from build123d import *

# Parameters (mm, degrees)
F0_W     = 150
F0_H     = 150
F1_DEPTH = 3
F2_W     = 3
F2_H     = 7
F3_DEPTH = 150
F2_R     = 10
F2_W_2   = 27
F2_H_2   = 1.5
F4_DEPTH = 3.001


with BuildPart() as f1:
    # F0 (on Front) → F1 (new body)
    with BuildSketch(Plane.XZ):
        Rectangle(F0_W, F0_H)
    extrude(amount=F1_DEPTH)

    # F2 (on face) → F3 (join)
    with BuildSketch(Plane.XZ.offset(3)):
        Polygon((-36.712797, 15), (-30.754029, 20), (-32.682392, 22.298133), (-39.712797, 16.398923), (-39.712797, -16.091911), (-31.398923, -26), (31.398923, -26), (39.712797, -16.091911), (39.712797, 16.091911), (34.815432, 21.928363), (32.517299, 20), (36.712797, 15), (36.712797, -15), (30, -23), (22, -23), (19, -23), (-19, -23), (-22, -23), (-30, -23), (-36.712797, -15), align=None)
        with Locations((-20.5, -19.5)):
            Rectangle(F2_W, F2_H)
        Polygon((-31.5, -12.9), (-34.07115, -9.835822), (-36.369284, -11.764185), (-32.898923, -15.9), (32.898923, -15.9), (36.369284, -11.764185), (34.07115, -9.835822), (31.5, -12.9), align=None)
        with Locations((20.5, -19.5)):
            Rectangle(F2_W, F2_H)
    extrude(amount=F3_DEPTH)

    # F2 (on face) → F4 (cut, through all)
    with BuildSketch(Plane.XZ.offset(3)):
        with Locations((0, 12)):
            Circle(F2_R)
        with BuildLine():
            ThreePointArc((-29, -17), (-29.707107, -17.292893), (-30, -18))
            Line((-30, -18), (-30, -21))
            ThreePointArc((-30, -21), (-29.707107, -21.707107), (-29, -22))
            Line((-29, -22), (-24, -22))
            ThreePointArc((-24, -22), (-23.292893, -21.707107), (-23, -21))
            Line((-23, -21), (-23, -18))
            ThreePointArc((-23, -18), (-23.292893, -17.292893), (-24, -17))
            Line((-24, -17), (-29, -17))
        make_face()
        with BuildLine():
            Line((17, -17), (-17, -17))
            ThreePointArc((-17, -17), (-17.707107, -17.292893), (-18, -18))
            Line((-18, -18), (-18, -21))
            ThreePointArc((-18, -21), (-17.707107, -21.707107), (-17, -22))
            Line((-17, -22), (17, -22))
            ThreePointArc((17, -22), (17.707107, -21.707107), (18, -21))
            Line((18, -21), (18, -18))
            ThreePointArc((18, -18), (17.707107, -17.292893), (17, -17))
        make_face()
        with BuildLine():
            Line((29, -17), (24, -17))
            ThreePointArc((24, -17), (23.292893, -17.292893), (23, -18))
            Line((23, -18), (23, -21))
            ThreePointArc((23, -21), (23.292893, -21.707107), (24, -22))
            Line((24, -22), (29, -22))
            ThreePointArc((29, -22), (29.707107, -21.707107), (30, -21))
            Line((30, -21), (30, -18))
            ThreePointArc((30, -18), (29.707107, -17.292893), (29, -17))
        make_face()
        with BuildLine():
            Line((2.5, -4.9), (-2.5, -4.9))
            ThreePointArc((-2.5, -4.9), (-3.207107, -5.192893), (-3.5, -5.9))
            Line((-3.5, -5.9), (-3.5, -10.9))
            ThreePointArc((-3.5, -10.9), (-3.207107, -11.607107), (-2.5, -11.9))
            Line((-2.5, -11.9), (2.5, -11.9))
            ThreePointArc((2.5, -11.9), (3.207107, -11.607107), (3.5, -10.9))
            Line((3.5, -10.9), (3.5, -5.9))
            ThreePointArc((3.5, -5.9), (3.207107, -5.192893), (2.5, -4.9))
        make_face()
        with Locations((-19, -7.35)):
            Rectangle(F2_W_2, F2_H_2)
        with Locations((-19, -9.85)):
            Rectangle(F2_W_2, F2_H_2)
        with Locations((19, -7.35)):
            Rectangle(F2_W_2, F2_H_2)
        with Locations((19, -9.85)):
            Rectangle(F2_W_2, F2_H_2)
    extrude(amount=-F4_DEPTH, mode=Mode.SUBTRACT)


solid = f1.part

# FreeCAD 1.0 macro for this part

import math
import FreeCAD as App
import Part
import Sketcher

V = App.Vector
Q = App.Units.Quantity

doc = App.newDocument("Part")
body = doc.addObject("PartDesign::Body", "Body")

# Sketch on XZ plane
sketch1 = body.newObject("Sketcher::SketchObject", "Sketch")
sketch1.AttachmentSupport = (doc.getObject("XZ_Plane"), [""])
sketch1.MapMode = "FlatFace"
sketch1.addGeometry(Part.LineSegment(V(-75, 75, 0), V(-75, -75, 0)), False)
sketch1.addGeometry(Part.LineSegment(V(-75, -75, 0), V(75, -75, 0)), False)
sketch1.addGeometry(Part.LineSegment(V(75, -75, 0), V(75, 75, 0)), False)
sketch1.addGeometry(Part.LineSegment(V(75, 75, 0), V(-75, 75, 0)), False)
sketch1.addConstraint(Sketcher.Constraint("Coincident", 0, 2, 1, 1))
sketch1.addConstraint(Sketcher.Constraint("Coincident", 1, 2, 2, 1))
sketch1.addConstraint(Sketcher.Constraint("Coincident", 2, 2, 3, 1))
sketch1.addConstraint(Sketcher.Constraint("Coincident", 3, 2, 0, 1))
sketch1.addConstraint(Sketcher.Constraint("Vertical", 0))
sketch1.addConstraint(Sketcher.Constraint("Horizontal", 1))
sketch1.addConstraint(Sketcher.Constraint("Vertical", 2))
sketch1.addConstraint(Sketcher.Constraint("Horizontal", 3))
sketch1.addConstraint(Sketcher.Constraint("Symmetric", 0, 2, 2, 2, -1, 1))
sketch1.addConstraint(Sketcher.Constraint("Equal", 3, 0))
sketch1.addConstraint(Sketcher.Constraint("DistanceX", 1, 1, 1, 2, 150.0))
pad1 = body.newObject("PartDesign::Pad", "Pad")
pad1.Profile = sketch1
pad1.Length = 3

# Sketch on XZ plane
sketch2 = body.newObject("Sketcher::SketchObject", "Sketch001")
sketch2.AttachmentSupport = (doc.getObject("XZ_Plane"), [""])
sketch2.MapMode = "FlatFace"
sketch2.AttachmentOffset = App.Placement(V(0, 0, 3), App.Rotation())
sketch2.addGeometry(Part.LineSegment(V(-36.712797, 15, 0), V(-30.754029, 20, 0)), False)
sketch2.addGeometry(Part.LineSegment(V(-30.754029, 20, 0), V(-32.682392, 22.298133, 0)), False)
sketch2.addGeometry(Part.LineSegment(V(-32.682392, 22.298133, 0), V(-39.712797, 16.398923, 0)), False)
sketch2.addGeometry(Part.LineSegment(V(-39.712797, 16.398923, 0), V(-39.712797, -16.091911, 0)), False)
sketch2.addGeometry(Part.LineSegment(V(-39.712797, -16.091911, 0), V(-31.398923, -26, 0)), False)
sketch2.addGeometry(Part.LineSegment(V(-31.398923, -26, 0), V(31.398923, -26, 0)), False)
sketch2.addGeometry(Part.LineSegment(V(31.398923, -26, 0), V(39.712797, -16.091911, 0)), False)
sketch2.addGeometry(Part.LineSegment(V(39.712797, -16.091911, 0), V(39.712797, 16.091911, 0)), False)
sketch2.addGeometry(Part.LineSegment(V(39.712797, 16.091911, 0), V(34.815432, 21.928363, 0)), False)
sketch2.addGeometry(Part.LineSegment(V(34.815432, 21.928363, 0), V(32.517299, 20, 0)), False)
sketch2.addGeometry(Part.LineSegment(V(32.517299, 20, 0), V(36.712797, 15, 0)), False)
sketch2.addGeometry(Part.LineSegment(V(36.712797, 15, 0), V(36.712797, -15, 0)), False)
sketch2.addGeometry(Part.LineSegment(V(36.712797, -15, 0), V(30, -23, 0)), False)
sketch2.addGeometry(Part.LineSegment(V(30, -23, 0), V(22, -23, 0)), False)
sketch2.addGeometry(Part.LineSegment(V(22, -23, 0), V(22, -16, 0)), False)
sketch2.addGeometry(Part.LineSegment(V(22, -16, 0), V(19, -16, 0)), False)
sketch2.addGeometry(Part.LineSegment(V(19, -16, 0), V(19, -23, 0)), False)
sketch2.addGeometry(Part.LineSegment(V(19, -23, 0), V(-19, -23, 0)), False)
sketch2.addGeometry(Part.LineSegment(V(-19, -23, 0), V(-19, -16, 0)), False)
sketch2.addGeometry(Part.LineSegment(V(-19, -16, 0), V(-22, -16, 0)), False)
sketch2.addGeometry(Part.LineSegment(V(-22, -16, 0), V(-22, -23, 0)), False)
sketch2.addGeometry(Part.LineSegment(V(-22, -23, 0), V(-30, -23, 0)), False)
sketch2.addGeometry(Part.LineSegment(V(-30, -23, 0), V(-36.712797, -15, 0)), False)
sketch2.addGeometry(Part.LineSegment(V(-36.712797, -15, 0), V(-36.712797, 15, 0)), False)
sketch2.addGeometry(Part.LineSegment(V(-31.5, -12.9, 0), V(-34.07115, -9.835822, 0)), False)
sketch2.addGeometry(Part.LineSegment(V(-34.07115, -9.835822, 0), V(-36.369284, -11.764185, 0)), False)
sketch2.addGeometry(Part.LineSegment(V(-36.369284, -11.764185, 0), V(-32.898923, -15.9, 0)), False)
sketch2.addGeometry(Part.LineSegment(V(-32.898923, -15.9, 0), V(32.898923, -15.9, 0)), False)
sketch2.addGeometry(Part.LineSegment(V(32.898923, -15.9, 0), V(36.369284, -11.764185, 0)), False)
sketch2.addGeometry(Part.LineSegment(V(36.369284, -11.764185, 0), V(34.07115, -9.835822, 0)), False)
sketch2.addGeometry(Part.LineSegment(V(34.07115, -9.835822, 0), V(31.5, -12.9, 0)), False)
sketch2.addGeometry(Part.LineSegment(V(31.5, -12.9, 0), V(-31.5, -12.9, 0)), False)
sketch2.addConstraint(Sketcher.Constraint("Coincident", 0, 2, 1, 1))
sketch2.addConstraint(Sketcher.Constraint("Coincident", 1, 2, 2, 1))
sketch2.addConstraint(Sketcher.Constraint("Coincident", 2, 2, 3, 1))
sketch2.addConstraint(Sketcher.Constraint("Coincident", 3, 2, 4, 1))
sketch2.addConstraint(Sketcher.Constraint("Coincident", 4, 2, 5, 1))
sketch2.addConstraint(Sketcher.Constraint("Coincident", 5, 2, 6, 1))
sketch2.addConstraint(Sketcher.Constraint("Coincident", 6, 2, 7, 1))
sketch2.addConstraint(Sketcher.Constraint("Coincident", 7, 2, 8, 1))
sketch2.addConstraint(Sketcher.Constraint("Coincident", 8, 2, 9, 1))
sketch2.addConstraint(Sketcher.Constraint("Coincident", 9, 2, 10, 1))
sketch2.addConstraint(Sketcher.Constraint("Coincident", 10, 2, 11, 1))
sketch2.addConstraint(Sketcher.Constraint("Coincident", 11, 2, 12, 1))
sketch2.addConstraint(Sketcher.Constraint("Coincident", 12, 2, 13, 1))
sketch2.addConstraint(Sketcher.Constraint("Coincident", 13, 2, 14, 1))
sketch2.addConstraint(Sketcher.Constraint("Coincident", 14, 2, 15, 1))
sketch2.addConstraint(Sketcher.Constraint("Coincident", 15, 2, 16, 1))
sketch2.addConstraint(Sketcher.Constraint("Coincident", 16, 2, 17, 1))
sketch2.addConstraint(Sketcher.Constraint("Coincident", 17, 2, 18, 1))
sketch2.addConstraint(Sketcher.Constraint("Coincident", 18, 2, 19, 1))
sketch2.addConstraint(Sketcher.Constraint("Coincident", 19, 2, 20, 1))
sketch2.addConstraint(Sketcher.Constraint("Coincident", 20, 2, 21, 1))
sketch2.addConstraint(Sketcher.Constraint("Coincident", 21, 2, 22, 1))
sketch2.addConstraint(Sketcher.Constraint("Coincident", 22, 2, 23, 1))
sketch2.addConstraint(Sketcher.Constraint("Coincident", 23, 2, 0, 1))
sketch2.addConstraint(Sketcher.Constraint("Coincident", 24, 2, 25, 1))
sketch2.addConstraint(Sketcher.Constraint("Coincident", 25, 2, 26, 1))
sketch2.addConstraint(Sketcher.Constraint("Coincident", 26, 2, 27, 1))
sketch2.addConstraint(Sketcher.Constraint("Coincident", 27, 2, 28, 1))
sketch2.addConstraint(Sketcher.Constraint("Coincident", 28, 2, 29, 1))
sketch2.addConstraint(Sketcher.Constraint("Coincident", 29, 2, 30, 1))
sketch2.addConstraint(Sketcher.Constraint("Coincident", 30, 2, 31, 1))
sketch2.addConstraint(Sketcher.Constraint("Coincident", 31, 2, 24, 1))
sketch2.addConstraint(Sketcher.Constraint("Vertical", 3))
sketch2.addConstraint(Sketcher.Constraint("Horizontal", 5))
sketch2.addConstraint(Sketcher.Constraint("Vertical", 7))
sketch2.addConstraint(Sketcher.Constraint("Vertical", 11))
sketch2.addConstraint(Sketcher.Constraint("Horizontal", 13))
sketch2.addConstraint(Sketcher.Constraint("Vertical", 14))
sketch2.addConstraint(Sketcher.Constraint("Horizontal", 15))
sketch2.addConstraint(Sketcher.Constraint("Vertical", 16))
sketch2.addConstraint(Sketcher.Constraint("Horizontal", 17))
sketch2.addConstraint(Sketcher.Constraint("Vertical", 18))
sketch2.addConstraint(Sketcher.Constraint("Horizontal", 19))
sketch2.addConstraint(Sketcher.Constraint("Vertical", 20))
sketch2.addConstraint(Sketcher.Constraint("Horizontal", 21))
sketch2.addConstraint(Sketcher.Constraint("Vertical", 23))
sketch2.addConstraint(Sketcher.Constraint("Horizontal", 27))
sketch2.addConstraint(Sketcher.Constraint("Horizontal", 31))
sketch2.addConstraint(Sketcher.Constraint("Symmetric", 3, 2, 7, 2, -1, 1))
sketch2.addConstraint(Sketcher.Constraint("Symmetric", 10, 2, 22, 2, -1, 1))
sketch2.addConstraint(Sketcher.Constraint("Symmetric", 15, 2, 18, 2, -2))
sketch2.addConstraint(Sketcher.Constraint("Symmetric", 13, 2, 20, 2, -2))
sketch2.addConstraint(Sketcher.Constraint("Symmetric", 25, 2, 28, 2, -2))
sketch2.addConstraint(Sketcher.Constraint("Symmetric", 24, 2, 29, 2, -2))
sketch2.addConstraint(Sketcher.Constraint("Perpendicular", 0, 1))
sketch2.addConstraint(Sketcher.Constraint("Perpendicular", 1, 2))
sketch2.addConstraint(Sketcher.Constraint("Perpendicular", 2, 4))
sketch2.addConstraint(Sketcher.Constraint("Parallel", 4, 8))
sketch2.addConstraint(Sketcher.Constraint("Perpendicular", 8, 9))
sketch2.addConstraint(Sketcher.Constraint("Perpendicular", 9, 10))
sketch2.addConstraint(Sketcher.Constraint("Parallel", 6, 12))
sketch2.addConstraint(Sketcher.Constraint("Parallel", 10, 22))
sketch2.addConstraint(Sketcher.Constraint("Parallel", 22, 24))
sketch2.addConstraint(Sketcher.Constraint("Perpendicular", 24, 25))
sketch2.addConstraint(Sketcher.Constraint("Perpendicular", 25, 26))
sketch2.addConstraint(Sketcher.Constraint("Parallel", 12, 28))
sketch2.addConstraint(Sketcher.Constraint("Perpendicular", 28, 29))
sketch2.addConstraint(Sketcher.Constraint("Perpendicular", 29, 30))
sketch2.addConstraint(Sketcher.Constraint("Horizontal", 3, 2, 6, 2))
sketch2.addConstraint(Sketcher.Constraint("Horizontal", 0, 2, 9, 2))
sketch2.addConstraint(Sketcher.Constraint("Horizontal", 13, 2, 16, 2))
sketch2.addConstraint(Sketcher.Constraint("Horizontal", 11, 2, 22, 2))
sketch2.addConstraint(Sketcher.Constraint("Horizontal", 10, 2, 23, 2))
sketch2.addConstraint(Sketcher.Constraint("Equal", 1, 9))
sketch2.addConstraint(Sketcher.Constraint("Equal", 9, 25))
sketch2.addConstraint(Sketcher.Constraint("DistanceX", 13, 2, 13, 1, 8.0))
sketch2.addConstraint(Sketcher.Constraint("DistanceX", 15, 2, 15, 1, 3.0))
sketch2.addConstraint(Sketcher.Constraint("DistanceX", 17, 2, 17, 1, 38.0))
sketch2.addConstraint(Sketcher.Constraint("DistanceX", 31, 2, 31, 1, 63.0))
sketch2.addConstraint(Sketcher.Constraint("DistanceY", 11, 2, 11, 1, 30.0))
sketch2.addConstraint(Sketcher.Constraint("DistanceY", 14, 1, 14, 2, 7.0))
sketch2.addConstraint(Sketcher.Constraint("Angle", 0, Q("40 deg")))
sketch2.addConstraint(Sketcher.Constraint("Distance", 1, 3.0))
sketch2.addConstraint(Sketcher.Constraint("Distance", 24, 4.0))
sketch2.addConstraint(Sketcher.Constraint("DistanceY", -1, 1, 0, 2, 20.0))
sketch2.addConstraint(Sketcher.Constraint("DistanceY", 4, 2, -1, 1, 26.0))
sketch2.addConstraint(Sketcher.Constraint("DistanceY", 12, 2, -1, 1, 23.0))
sketch2.addConstraint(Sketcher.Constraint("DistanceX", 10, 2, 7, 2, 3.0))
sketch2.addConstraint(Sketcher.Constraint("DistanceY", 27, 2, 30, 2, 3.0))
sketch2.addConstraint(Sketcher.Constraint("DistanceY", 26, 2, -1, 1, 15.9))
pad2 = body.newObject("PartDesign::Pad", "Pad001")
pad2.Profile = sketch2
pad2.Length = 150

# Sketch on XZ plane
sketch3 = body.newObject("Sketcher::SketchObject", "Sketch002")
sketch3.AttachmentSupport = (doc.getObject("XZ_Plane"), [""])
sketch3.MapMode = "FlatFace"
sketch3.AttachmentOffset = App.Placement(V(0, 0, 3), App.Rotation())
sketch3.addGeometry(Part.Circle(V(0, 12, 0), V(0, 0, 1), 10), False)
sketch3.addGeometry(Part.ArcOfCircle(Part.Circle(V(-29.000001, -17.999999, 0), V(0, 0, 1), 0.999999), math.radians(89.999957), math.radians(180.000043)), False)
sketch3.addGeometry(Part.LineSegment(V(-30, -18, 0), V(-30, -21, 0)), False)
sketch3.addGeometry(Part.ArcOfCircle(Part.Circle(V(-29.000001, -21.000001, 0), V(0, 0, 1), 0.999999), math.radians(179.999957), math.radians(270.000043)), False)
sketch3.addGeometry(Part.LineSegment(V(-29, -22, 0), V(-24, -22, 0)), False)
sketch3.addGeometry(Part.ArcOfCircle(Part.Circle(V(-23.999999, -21.000001, 0), V(0, 0, 1), 0.999999), math.radians(-90.000043), math.radians(0.000043)), False)
sketch3.addGeometry(Part.LineSegment(V(-23, -21, 0), V(-23, -18, 0)), False)
sketch3.addGeometry(Part.ArcOfCircle(Part.Circle(V(-23.999999, -17.999999, 0), V(0, 0, 1), 0.999999), math.radians(-0.000043), math.radians(90.000043)), False)
sketch3.addGeometry(Part.LineSegment(V(-24, -17, 0), V(-29, -17, 0)), False)
sketch3.addGeometry(Part.LineSegment(V(17, -17, 0), V(-17, -17, 0)), False)
sketch3.addGeometry(Part.ArcOfCircle(Part.Circle(V(-17.000001, -17.999999, 0), V(0, 0, 1), 0.999999), math.radians(89.999957), math.radians(180.000043)), False)
sketch3.addGeometry(Part.LineSegment(V(-18, -18, 0), V(-18, -21, 0)), False)
sketch3.addGeometry(Part.ArcOfCircle(Part.Circle(V(-17.000001, -21.000001, 0), V(0, 0, 1), 0.999999), math.radians(179.999957), math.radians(270.000043)), False)
sketch3.addGeometry(Part.LineSegment(V(-17, -22, 0), V(17, -22, 0)), False)
sketch3.addGeometry(Part.ArcOfCircle(Part.Circle(V(17.000001, -21.000001, 0), V(0, 0, 1), 0.999999), math.radians(-90.000043), math.radians(0.000043)), False)
sketch3.addGeometry(Part.LineSegment(V(18, -21, 0), V(18, -18, 0)), False)
sketch3.addGeometry(Part.ArcOfCircle(Part.Circle(V(17.000001, -17.999999, 0), V(0, 0, 1), 0.999999), math.radians(-0.000043), math.radians(90.000043)), False)
sketch3.addGeometry(Part.LineSegment(V(29, -17, 0), V(24, -17, 0)), False)
sketch3.addGeometry(Part.ArcOfCircle(Part.Circle(V(23.999999, -17.999999, 0), V(0, 0, 1), 0.999999), math.radians(89.999957), math.radians(180.000043)), False)
sketch3.addGeometry(Part.LineSegment(V(23, -18, 0), V(23, -21, 0)), False)
sketch3.addGeometry(Part.ArcOfCircle(Part.Circle(V(23.999999, -21.000001, 0), V(0, 0, 1), 0.999999), math.radians(179.999957), math.radians(270.000043)), False)
sketch3.addGeometry(Part.LineSegment(V(24, -22, 0), V(29, -22, 0)), False)
sketch3.addGeometry(Part.ArcOfCircle(Part.Circle(V(29.000001, -21.000001, 0), V(0, 0, 1), 0.999999), math.radians(-90.000043), math.radians(0.000043)), False)
sketch3.addGeometry(Part.LineSegment(V(30, -21, 0), V(30, -18, 0)), False)
sketch3.addGeometry(Part.ArcOfCircle(Part.Circle(V(29.000001, -17.999999, 0), V(0, 0, 1), 0.999999), math.radians(-0.000043), math.radians(90.000043)), False)
sketch3.addGeometry(Part.LineSegment(V(2.5, -4.9, 0), V(-2.5, -4.9, 0)), False)
sketch3.addGeometry(Part.ArcOfCircle(Part.Circle(V(-2.500001, -5.899999, 0), V(0, 0, 1), 0.999999), math.radians(89.999957), math.radians(180.000043)), False)
sketch3.addGeometry(Part.LineSegment(V(-3.5, -5.9, 0), V(-3.5, -10.9, 0)), False)
sketch3.addGeometry(Part.ArcOfCircle(Part.Circle(V(-2.500001, -10.900001, 0), V(0, 0, 1), 0.999999), math.radians(179.999957), math.radians(270.000043)), False)
sketch3.addGeometry(Part.LineSegment(V(-2.5, -11.9, 0), V(2.5, -11.9, 0)), False)
sketch3.addGeometry(Part.ArcOfCircle(Part.Circle(V(2.500001, -10.900001, 0), V(0, 0, 1), 0.999999), math.radians(-90.000043), math.radians(0.000043)), False)
sketch3.addGeometry(Part.LineSegment(V(3.5, -10.9, 0), V(3.5, -5.9, 0)), False)
sketch3.addGeometry(Part.ArcOfCircle(Part.Circle(V(2.500001, -5.899999, 0), V(0, 0, 1), 0.999999), math.radians(-0.000043), math.radians(90.000043)), False)
sketch3.addGeometry(Part.LineSegment(V(-32.5, -6.6, 0), V(-32.5, -8.1, 0)), False)
sketch3.addGeometry(Part.LineSegment(V(-32.5, -8.1, 0), V(-5.5, -8.1, 0)), False)
sketch3.addGeometry(Part.LineSegment(V(-5.5, -8.1, 0), V(-5.5, -6.6, 0)), False)
sketch3.addGeometry(Part.LineSegment(V(-5.5, -6.6, 0), V(-32.5, -6.6, 0)), False)
sketch3.addGeometry(Part.LineSegment(V(-32.5, -9.1, 0), V(-32.5, -10.6, 0)), False)
sketch3.addGeometry(Part.LineSegment(V(-32.5, -10.6, 0), V(-5.5, -10.6, 0)), False)
sketch3.addGeometry(Part.LineSegment(V(-5.5, -10.6, 0), V(-5.5, -9.1, 0)), False)
sketch3.addGeometry(Part.LineSegment(V(-5.5, -9.1, 0), V(-32.5, -9.1, 0)), False)
sketch3.addGeometry(Part.LineSegment(V(5.5, -6.6, 0), V(5.5, -8.1, 0)), False)
sketch3.addGeometry(Part.LineSegment(V(5.5, -8.1, 0), V(32.5, -8.1, 0)), False)
sketch3.addGeometry(Part.LineSegment(V(32.5, -8.1, 0), V(32.5, -6.6, 0)), False)
sketch3.addGeometry(Part.LineSegment(V(32.5, -6.6, 0), V(5.5, -6.6, 0)), False)
sketch3.addGeometry(Part.LineSegment(V(5.5, -9.1, 0), V(5.5, -10.6, 0)), False)
sketch3.addGeometry(Part.LineSegment(V(5.5, -10.6, 0), V(32.5, -10.6, 0)), False)
sketch3.addGeometry(Part.LineSegment(V(32.5, -10.6, 0), V(32.5, -9.1, 0)), False)
sketch3.addGeometry(Part.LineSegment(V(32.5, -9.1, 0), V(5.5, -9.1, 0)), False)
sketch3.addConstraint(Sketcher.Constraint("Tangent", 1, 2, 2, 1))
sketch3.addConstraint(Sketcher.Constraint("Tangent", 2, 2, 3, 1))
sketch3.addConstraint(Sketcher.Constraint("Tangent", 3, 2, 4, 1))
sketch3.addConstraint(Sketcher.Constraint("Tangent", 4, 2, 5, 1))
sketch3.addConstraint(Sketcher.Constraint("Tangent", 5, 2, 6, 1))
sketch3.addConstraint(Sketcher.Constraint("Tangent", 6, 2, 7, 1))
sketch3.addConstraint(Sketcher.Constraint("Tangent", 7, 2, 8, 1))
sketch3.addConstraint(Sketcher.Constraint("Tangent", 8, 2, 1, 1))
sketch3.addConstraint(Sketcher.Constraint("Tangent", 9, 2, 10, 1))
sketch3.addConstraint(Sketcher.Constraint("Tangent", 10, 2, 11, 1))
sketch3.addConstraint(Sketcher.Constraint("Tangent", 11, 2, 12, 1))
sketch3.addConstraint(Sketcher.Constraint("Tangent", 12, 2, 13, 1))
sketch3.addConstraint(Sketcher.Constraint("Tangent", 13, 2, 14, 1))
sketch3.addConstraint(Sketcher.Constraint("Tangent", 14, 2, 15, 1))
sketch3.addConstraint(Sketcher.Constraint("Tangent", 15, 2, 16, 1))
sketch3.addConstraint(Sketcher.Constraint("Tangent", 16, 2, 9, 1))
sketch3.addConstraint(Sketcher.Constraint("Tangent", 17, 2, 18, 1))
sketch3.addConstraint(Sketcher.Constraint("Tangent", 18, 2, 19, 1))
sketch3.addConstraint(Sketcher.Constraint("Tangent", 19, 2, 20, 1))
sketch3.addConstraint(Sketcher.Constraint("Tangent", 20, 2, 21, 1))
sketch3.addConstraint(Sketcher.Constraint("Tangent", 21, 2, 22, 1))
sketch3.addConstraint(Sketcher.Constraint("Tangent", 22, 2, 23, 1))
sketch3.addConstraint(Sketcher.Constraint("Tangent", 23, 2, 24, 1))
sketch3.addConstraint(Sketcher.Constraint("Tangent", 24, 2, 17, 1))
sketch3.addConstraint(Sketcher.Constraint("Tangent", 25, 2, 26, 1))
sketch3.addConstraint(Sketcher.Constraint("Tangent", 26, 2, 27, 1))
sketch3.addConstraint(Sketcher.Constraint("Tangent", 27, 2, 28, 1))
sketch3.addConstraint(Sketcher.Constraint("Tangent", 28, 2, 29, 1))
sketch3.addConstraint(Sketcher.Constraint("Tangent", 29, 2, 30, 1))
sketch3.addConstraint(Sketcher.Constraint("Tangent", 30, 2, 31, 1))
sketch3.addConstraint(Sketcher.Constraint("Tangent", 31, 2, 32, 1))
sketch3.addConstraint(Sketcher.Constraint("Tangent", 32, 2, 25, 1))
sketch3.addConstraint(Sketcher.Constraint("Coincident", 33, 2, 34, 1))
sketch3.addConstraint(Sketcher.Constraint("Coincident", 34, 2, 35, 1))
sketch3.addConstraint(Sketcher.Constraint("Coincident", 35, 2, 36, 1))
sketch3.addConstraint(Sketcher.Constraint("Coincident", 36, 2, 33, 1))
sketch3.addConstraint(Sketcher.Constraint("Coincident", 37, 2, 38, 1))
sketch3.addConstraint(Sketcher.Constraint("Coincident", 38, 2, 39, 1))
sketch3.addConstraint(Sketcher.Constraint("Coincident", 39, 2, 40, 1))
sketch3.addConstraint(Sketcher.Constraint("Coincident", 40, 2, 37, 1))
sketch3.addConstraint(Sketcher.Constraint("Coincident", 41, 2, 42, 1))
sketch3.addConstraint(Sketcher.Constraint("Coincident", 42, 2, 43, 1))
sketch3.addConstraint(Sketcher.Constraint("Coincident", 43, 2, 44, 1))
sketch3.addConstraint(Sketcher.Constraint("Coincident", 44, 2, 41, 1))
sketch3.addConstraint(Sketcher.Constraint("Coincident", 45, 2, 46, 1))
sketch3.addConstraint(Sketcher.Constraint("Coincident", 46, 2, 47, 1))
sketch3.addConstraint(Sketcher.Constraint("Coincident", 47, 2, 48, 1))
sketch3.addConstraint(Sketcher.Constraint("Coincident", 48, 2, 45, 1))
sketch3.addConstraint(Sketcher.Constraint("Vertical", 2))
sketch3.addConstraint(Sketcher.Constraint("Horizontal", 4))
sketch3.addConstraint(Sketcher.Constraint("Vertical", 6))
sketch3.addConstraint(Sketcher.Constraint("Horizontal", 8))
sketch3.addConstraint(Sketcher.Constraint("Horizontal", 9))
sketch3.addConstraint(Sketcher.Constraint("Vertical", 11))
sketch3.addConstraint(Sketcher.Constraint("Horizontal", 13))
sketch3.addConstraint(Sketcher.Constraint("Vertical", 15))
sketch3.addConstraint(Sketcher.Constraint("Horizontal", 17))
sketch3.addConstraint(Sketcher.Constraint("Vertical", 19))
sketch3.addConstraint(Sketcher.Constraint("Horizontal", 21))
sketch3.addConstraint(Sketcher.Constraint("Vertical", 23))
sketch3.addConstraint(Sketcher.Constraint("Horizontal", 25))
sketch3.addConstraint(Sketcher.Constraint("Vertical", 27))
sketch3.addConstraint(Sketcher.Constraint("Horizontal", 29))
sketch3.addConstraint(Sketcher.Constraint("Vertical", 31))
sketch3.addConstraint(Sketcher.Constraint("Vertical", 33))
sketch3.addConstraint(Sketcher.Constraint("Horizontal", 34))
sketch3.addConstraint(Sketcher.Constraint("Vertical", 35))
sketch3.addConstraint(Sketcher.Constraint("Horizontal", 36))
sketch3.addConstraint(Sketcher.Constraint("Vertical", 37))
sketch3.addConstraint(Sketcher.Constraint("Horizontal", 38))
sketch3.addConstraint(Sketcher.Constraint("Vertical", 39))
sketch3.addConstraint(Sketcher.Constraint("Horizontal", 40))
sketch3.addConstraint(Sketcher.Constraint("Vertical", 41))
sketch3.addConstraint(Sketcher.Constraint("Horizontal", 42))
sketch3.addConstraint(Sketcher.Constraint("Vertical", 43))
sketch3.addConstraint(Sketcher.Constraint("Horizontal", 44))
sketch3.addConstraint(Sketcher.Constraint("Vertical", 45))
sketch3.addConstraint(Sketcher.Constraint("Horizontal", 46))
sketch3.addConstraint(Sketcher.Constraint("Vertical", 47))
sketch3.addConstraint(Sketcher.Constraint("Horizontal", 48))
sketch3.addConstraint(Sketcher.Constraint("Equal", 1, 3))
sketch3.addConstraint(Sketcher.Constraint("Equal", 3, 5))
sketch3.addConstraint(Sketcher.Constraint("Equal", 5, 7))
sketch3.addConstraint(Sketcher.Constraint("Equal", 7, 10))
sketch3.addConstraint(Sketcher.Constraint("Equal", 10, 12))
sketch3.addConstraint(Sketcher.Constraint("Equal", 12, 14))
sketch3.addConstraint(Sketcher.Constraint("Equal", 14, 16))
sketch3.addConstraint(Sketcher.Constraint("Equal", 16, 18))
sketch3.addConstraint(Sketcher.Constraint("Equal", 18, 20))
sketch3.addConstraint(Sketcher.Constraint("Equal", 20, 22))
sketch3.addConstraint(Sketcher.Constraint("Equal", 22, 24))
sketch3.addConstraint(Sketcher.Constraint("Equal", 24, 26))
sketch3.addConstraint(Sketcher.Constraint("Equal", 26, 28))
sketch3.addConstraint(Sketcher.Constraint("Equal", 28, 30))
sketch3.addConstraint(Sketcher.Constraint("Equal", 30, 32))
sketch3.addConstraint(Sketcher.Constraint("Symmetric", 7, 3, 18, 3, -2))
sketch3.addConstraint(Sketcher.Constraint("Symmetric", 3, 3, 22, 3, -2))
sketch3.addConstraint(Sketcher.Constraint("Symmetric", 34, 2, 41, 2, -2))
sketch3.addConstraint(Sketcher.Constraint("Symmetric", 36, 2, 43, 2, -2))
sketch3.addConstraint(Sketcher.Constraint("Symmetric", 38, 2, 45, 2, -2))
sketch3.addConstraint(Sketcher.Constraint("Symmetric", 40, 2, 47, 2, -2))
sketch3.addConstraint(Sketcher.Constraint("PointOnObject", 0, 3, -2))
sketch3.addConstraint(Sketcher.Constraint("Horizontal", 7, 3, 10, 3))
sketch3.addConstraint(Sketcher.Constraint("Horizontal", 5, 3, 12, 3))
sketch3.addConstraint(Sketcher.Constraint("Vertical", 36, 2, 37, 2))
sketch3.addConstraint(Sketcher.Constraint("Vertical", 35, 2, 38, 2))
sketch3.addConstraint(Sketcher.Constraint("Equal", 21, 25))
sketch3.addConstraint(Sketcher.Constraint("Equal", 29, 27))
sketch3.addConstraint(Sketcher.Constraint("Equal", 35, 37))
sketch3.addConstraint(Sketcher.Constraint("Diameter", 0, 20.0))
sketch3.addConstraint(Sketcher.Constraint("Radius", 1, 0.999999))
sketch3.addConstraint(Sketcher.Constraint("DistanceX", 4, 1, 4, 2, 5.0))
sketch3.addConstraint(Sketcher.Constraint("DistanceX", 9, 2, 9, 1, 34.0))
sketch3.addConstraint(Sketcher.Constraint("DistanceX", 34, 1, 34, 2, 27.0))
sketch3.addConstraint(Sketcher.Constraint("DistanceY", 2, 2, 2, 1, 3.0))
sketch3.addConstraint(Sketcher.Constraint("DistanceY", 33, 2, 33, 1, 1.5))
sketch3.addConstraint(Sketcher.Constraint("DistanceY", -1, 1, 0, 3, 12.0))
sketch3.addConstraint(Sketcher.Constraint("DistanceX", 1, 3, -1, 1, 29.000001))
sketch3.addConstraint(Sketcher.Constraint("DistanceY", 1, 3, -1, 1, 17.999999))
sketch3.addConstraint(Sketcher.Constraint("DistanceX", 10, 3, -1, 1, 17.000001))
sketch3.addConstraint(Sketcher.Constraint("DistanceX", 26, 3, -1, 1, 2.500001))
sketch3.addConstraint(Sketcher.Constraint("DistanceY", 26, 3, -1, 1, 5.899999))
sketch3.addConstraint(Sketcher.Constraint("DistanceX", 33, 2, -1, 1, 32.5))
sketch3.addConstraint(Sketcher.Constraint("DistanceY", 33, 2, -1, 1, 8.1))
sketch3.addConstraint(Sketcher.Constraint("DistanceY", 37, 2, -1, 1, 10.6))
pocket1 = body.newObject("PartDesign::Pocket", "Pocket")
pocket1.Profile = sketch3
pocket1.Type = "ThroughAll"

doc.recompute()
